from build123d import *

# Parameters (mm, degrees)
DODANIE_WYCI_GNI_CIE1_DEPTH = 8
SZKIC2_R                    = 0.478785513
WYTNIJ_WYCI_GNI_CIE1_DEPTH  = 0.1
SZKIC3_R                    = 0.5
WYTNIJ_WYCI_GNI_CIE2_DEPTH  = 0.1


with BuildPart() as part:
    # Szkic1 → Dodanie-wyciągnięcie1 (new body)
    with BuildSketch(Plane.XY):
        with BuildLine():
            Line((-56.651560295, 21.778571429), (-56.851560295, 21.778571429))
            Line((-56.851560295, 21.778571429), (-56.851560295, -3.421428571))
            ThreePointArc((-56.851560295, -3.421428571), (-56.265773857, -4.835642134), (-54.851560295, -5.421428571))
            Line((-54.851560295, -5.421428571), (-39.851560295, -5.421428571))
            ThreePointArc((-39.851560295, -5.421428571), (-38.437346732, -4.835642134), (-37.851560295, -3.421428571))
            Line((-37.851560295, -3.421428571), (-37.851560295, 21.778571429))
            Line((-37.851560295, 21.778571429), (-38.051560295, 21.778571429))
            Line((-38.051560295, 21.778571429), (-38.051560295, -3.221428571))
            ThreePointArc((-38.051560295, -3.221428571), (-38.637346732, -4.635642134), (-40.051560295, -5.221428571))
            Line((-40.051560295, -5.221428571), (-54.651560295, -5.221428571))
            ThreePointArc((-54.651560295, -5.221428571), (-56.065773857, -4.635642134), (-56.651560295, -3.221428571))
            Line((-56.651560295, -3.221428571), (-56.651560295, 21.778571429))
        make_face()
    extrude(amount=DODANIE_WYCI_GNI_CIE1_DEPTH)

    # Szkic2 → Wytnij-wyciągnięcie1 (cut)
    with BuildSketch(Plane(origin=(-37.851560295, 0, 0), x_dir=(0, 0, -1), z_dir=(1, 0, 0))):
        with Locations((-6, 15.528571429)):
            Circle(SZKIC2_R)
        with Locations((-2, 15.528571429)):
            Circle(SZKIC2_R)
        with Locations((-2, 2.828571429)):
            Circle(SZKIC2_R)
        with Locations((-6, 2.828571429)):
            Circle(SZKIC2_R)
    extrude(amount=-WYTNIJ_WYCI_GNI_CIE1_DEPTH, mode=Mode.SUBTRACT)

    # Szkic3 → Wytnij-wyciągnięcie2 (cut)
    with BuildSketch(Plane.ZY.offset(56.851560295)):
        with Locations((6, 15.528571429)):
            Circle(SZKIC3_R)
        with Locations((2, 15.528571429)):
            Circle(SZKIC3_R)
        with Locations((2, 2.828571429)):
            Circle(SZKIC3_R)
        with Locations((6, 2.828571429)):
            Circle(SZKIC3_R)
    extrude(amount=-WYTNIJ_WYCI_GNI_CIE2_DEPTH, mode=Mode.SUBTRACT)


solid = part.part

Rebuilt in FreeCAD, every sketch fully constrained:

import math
import FreeCAD as App
import Part
import Sketcher
from FreeCAD import Vector

doc = App.newDocument("Part")
body = doc.addObject("PartDesign::Body", "Body")

# Sketch on XY plane
sketch1 = doc.addObject("Sketcher::SketchObject", "Sketch")
body.addObject(sketch1)
sketch1.AttachmentSupport = (doc.XY_Plane, [""])
sketch1.MapMode = "FlatFace"
sketch1.addGeometry([
    Part.LineSegment(Vector(-56.65, 21.78, 0), Vector(-56.85, 21.78, 0)),  # 0
    Part.LineSegment(Vector(-56.85, 21.78, 0), Vector(-56.85, -3.42, 0)),  # 1
    Part.ArcOfCircle(Part.Circle(Vector(-54.85, -3.42, 0), Vector(0, 0, 1), 2), math.radians(180), math.radians(270)),  # 2
    Part.LineSegment(Vector(-54.85, -5.42, 0), Vector(-39.85, -5.42, 0)),  # 3
    Part.ArcOfCircle(Part.Circle(Vector(-39.85, -3.42, 0), Vector(0, 0, 1), 2), math.radians(-90), math.radians(0)),  # 4
    Part.LineSegment(Vector(-37.85, -3.42, 0), Vector(-37.85, 21.78, 0)),  # 5
    Part.LineSegment(Vector(-37.85, 21.78, 0), Vector(-38.05, 21.78, 0)),  # 6
    Part.LineSegment(Vector(-38.05, 21.78, 0), Vector(-38.05, -3.22, 0)),  # 7
    Part.ArcOfCircle(Part.Circle(Vector(-40.05, -3.22, 0), Vector(0, 0, 1), 2), math.radians(-90), math.radians(0)),  # 8
    Part.LineSegment(Vector(-40.05, -5.22, 0), Vector(-54.65, -5.22, 0)),  # 9
    Part.ArcOfCircle(Part.Circle(Vector(-54.65, -3.22, 0), Vector(0, 0, 1), 2), math.radians(180), math.radians(270)),  # 10
    Part.LineSegment(Vector(-56.65, -3.22, 0), Vector(-56.65, 21.78, 0)),  # 11
], False)
sketch1.addConstraint([
    Sketcher.Constraint("Coincident", 0, 2, 1, 1),
    Sketcher.Constraint("Tangent", 1, 2, 2, 1),
    Sketcher.Constraint("Tangent", 2, 2, 3, 1),
    Sketcher.Constraint("Tangent", 3, 2, 4, 1),
    Sketcher.Constraint("Tangent", 4, 2, 5, 1),
    Sketcher.Constraint("Coincident", 5, 2, 6, 1),
    Sketcher.Constraint("Coincident", 6, 2, 7, 1),
    Sketcher.Constraint("Tangent", 7, 2, 8, 2),
    Sketcher.Constraint("Tangent", 8, 1, 9, 1),
    Sketcher.Constraint("Tangent", 9, 2, 10, 2),
    Sketcher.Constraint("Tangent", 10, 1, 11, 1),
    Sketcher.Constraint("Coincident", 11, 2, 0, 1),
    Sketcher.Constraint("Horizontal", 0),
    Sketcher.Constraint("Vertical", 1),
    Sketcher.Constraint("Horizontal", 3),
    Sketcher.Constraint("Vertical", 5),
    Sketcher.Constraint("Horizontal", 6),
    Sketcher.Constraint("Vertical", 7),
    Sketcher.Constraint("Horizontal", 9),
    Sketcher.Constraint("Vertical", 11),
    Sketcher.Constraint("Equal", 2, 4),
    Sketcher.Constraint("Equal", 4, 8),
    Sketcher.Constraint("Equal", 8, 10),
    Sketcher.Constraint("Horizontal", 0, 2, 5, 2),
    Sketcher.Constraint("Equal", 0, 6),
    Sketcher.Constraint("Radius", 2, 2.0),
    Sketcher.Constraint("DistanceX", 3, 1, 3, 2, 15.0),
    Sketcher.Constraint("DistanceY", 7, 2, 7, 1, 25.0),
    Sketcher.Constraint("DistanceX", 0, 2, 0, 1, 0.2),
    Sketcher.Constraint("DistanceY", 1, 2, 1, 1, 25.2),
    Sketcher.Constraint("DistanceX", 2, 3, -1, 1, 54.85156),
    Sketcher.Constraint("DistanceY", 2, 3, -1, 1, 3.421429),
])
pad1 = doc.addObject("PartDesign::Pad", "Pad")
body.addObject(pad1)
pad1.Profile = sketch1
pad1.Length = 8

# Sketch on YZ plane
sketch2 = doc.addObject("Sketcher::SketchObject", "Sketch001")
body.addObject(sketch2)
sketch2.AttachmentSupport = (doc.YZ_Plane, [""])
sketch2.MapMode = "FlatFace"
sketch2.AttachmentOffset = App.Placement(Vector(0, 0, -37.85156), App.Rotation())
sketch2.addGeometry([
    Part.Circle(Vector(15.53, 6, 0), Vector(0, 0, 1), 0.48),
    Part.Circle(Vector(15.53, 2, 0), Vector(0, 0, 1), 0.48),
    Part.Circle(Vector(2.83, 2, 0), Vector(0, 0, 1), 0.48),
    Part.Circle(Vector(2.83, 6, 0), Vector(0, 0, 1), 0.48),
], False)
sketch2.addConstraint([
    Sketcher.Constraint("Equal", 0, 1),
    Sketcher.Constraint("Equal", 1, 2),
    Sketcher.Constraint("Equal", 2, 3),
    Sketcher.Constraint("Horizontal", 1, 3, 2, 3),
    Sketcher.Constraint("Horizontal", 0, 3, 3, 3),
    Sketcher.Constraint("Vertical", 0, 3, 1, 3),
    Sketcher.Constraint("Vertical", 2, 3, 3, 3),
    Sketcher.Constraint("DistanceY", -1, 1, 0, 3, 6.0),
    Sketcher.Constraint("DistanceY", -1, 1, 1, 3, 2.0),
    Sketcher.Constraint("DistanceX", 2, 3, 1, 3, 12.7),
    Sketcher.Constraint("Diameter", 0, 0.957571),
    Sketcher.Constraint("DistanceX", -1, 1, 0, 3, 15.528571),
])
pocket1 = doc.addObject("PartDesign::Pocket", "Pocket")
body.addObject(pocket1)
pocket1.Profile = sketch2
pocket1.Length = 0.1

# Sketch on YZ plane
sketch3 = doc.addObject("Sketcher::SketchObject", "Sketch002")
body.addObject(sketch3)
sketch3.AttachmentSupport = (doc.YZ_Plane, [""])
sketch3.MapMode = "FlatFace"
sketch3.AttachmentOffset = App.Placement(Vector(0, 0, -56.85156), App.Rotation())
sketch3.addGeometry([
    Part.Circle(Vector(15.5, 6, 0), Vector(0, 0, 1), 0.5),
    Part.Circle(Vector(15.5, 2, 0), Vector(0, 0, 1), 0.5),
    Part.Circle(Vector(2.8, 2, 0), Vector(0, 0, 1), 0.5),
    Part.Circle(Vector(2.8, 6, 0), Vector(0, 0, 1), 0.5),
], False)
sketch3.addConstraint([
    Sketcher.Constraint("Equal", 0, 1),
    Sketcher.Constraint("Equal", 1, 2),
    Sketcher.Constraint("Equal", 2, 3),
    Sketcher.Constraint("Horizontal", 1, 3, 2, 3),
    Sketcher.Constraint("Horizontal", 0, 3, 3, 3),
    Sketcher.Constraint("Vertical", 0, 3, 1, 3),
    Sketcher.Constraint("Vertical", 2, 3, 3, 3),
    Sketcher.Constraint("Diameter", 0, 1.0),
    Sketcher.Constraint("DistanceY", -1, 1, 0, 3, 6.0),
    Sketcher.Constraint("DistanceY", -1, 1, 1, 3, 2.0),
    Sketcher.Constraint("DistanceX", 2, 3, 1, 3, 12.7),
    Sketcher.Constraint("DistanceX", -1, 1, 0, 3, 15.528571),
])
pocket2 = doc.addObject("PartDesign::Pocket", "Pocket001")
body.addObject(pocket2)
pocket2.Profile = sketch3
pocket2.Length = 0.1
pocket2.Reversed = True

doc.recompute()
